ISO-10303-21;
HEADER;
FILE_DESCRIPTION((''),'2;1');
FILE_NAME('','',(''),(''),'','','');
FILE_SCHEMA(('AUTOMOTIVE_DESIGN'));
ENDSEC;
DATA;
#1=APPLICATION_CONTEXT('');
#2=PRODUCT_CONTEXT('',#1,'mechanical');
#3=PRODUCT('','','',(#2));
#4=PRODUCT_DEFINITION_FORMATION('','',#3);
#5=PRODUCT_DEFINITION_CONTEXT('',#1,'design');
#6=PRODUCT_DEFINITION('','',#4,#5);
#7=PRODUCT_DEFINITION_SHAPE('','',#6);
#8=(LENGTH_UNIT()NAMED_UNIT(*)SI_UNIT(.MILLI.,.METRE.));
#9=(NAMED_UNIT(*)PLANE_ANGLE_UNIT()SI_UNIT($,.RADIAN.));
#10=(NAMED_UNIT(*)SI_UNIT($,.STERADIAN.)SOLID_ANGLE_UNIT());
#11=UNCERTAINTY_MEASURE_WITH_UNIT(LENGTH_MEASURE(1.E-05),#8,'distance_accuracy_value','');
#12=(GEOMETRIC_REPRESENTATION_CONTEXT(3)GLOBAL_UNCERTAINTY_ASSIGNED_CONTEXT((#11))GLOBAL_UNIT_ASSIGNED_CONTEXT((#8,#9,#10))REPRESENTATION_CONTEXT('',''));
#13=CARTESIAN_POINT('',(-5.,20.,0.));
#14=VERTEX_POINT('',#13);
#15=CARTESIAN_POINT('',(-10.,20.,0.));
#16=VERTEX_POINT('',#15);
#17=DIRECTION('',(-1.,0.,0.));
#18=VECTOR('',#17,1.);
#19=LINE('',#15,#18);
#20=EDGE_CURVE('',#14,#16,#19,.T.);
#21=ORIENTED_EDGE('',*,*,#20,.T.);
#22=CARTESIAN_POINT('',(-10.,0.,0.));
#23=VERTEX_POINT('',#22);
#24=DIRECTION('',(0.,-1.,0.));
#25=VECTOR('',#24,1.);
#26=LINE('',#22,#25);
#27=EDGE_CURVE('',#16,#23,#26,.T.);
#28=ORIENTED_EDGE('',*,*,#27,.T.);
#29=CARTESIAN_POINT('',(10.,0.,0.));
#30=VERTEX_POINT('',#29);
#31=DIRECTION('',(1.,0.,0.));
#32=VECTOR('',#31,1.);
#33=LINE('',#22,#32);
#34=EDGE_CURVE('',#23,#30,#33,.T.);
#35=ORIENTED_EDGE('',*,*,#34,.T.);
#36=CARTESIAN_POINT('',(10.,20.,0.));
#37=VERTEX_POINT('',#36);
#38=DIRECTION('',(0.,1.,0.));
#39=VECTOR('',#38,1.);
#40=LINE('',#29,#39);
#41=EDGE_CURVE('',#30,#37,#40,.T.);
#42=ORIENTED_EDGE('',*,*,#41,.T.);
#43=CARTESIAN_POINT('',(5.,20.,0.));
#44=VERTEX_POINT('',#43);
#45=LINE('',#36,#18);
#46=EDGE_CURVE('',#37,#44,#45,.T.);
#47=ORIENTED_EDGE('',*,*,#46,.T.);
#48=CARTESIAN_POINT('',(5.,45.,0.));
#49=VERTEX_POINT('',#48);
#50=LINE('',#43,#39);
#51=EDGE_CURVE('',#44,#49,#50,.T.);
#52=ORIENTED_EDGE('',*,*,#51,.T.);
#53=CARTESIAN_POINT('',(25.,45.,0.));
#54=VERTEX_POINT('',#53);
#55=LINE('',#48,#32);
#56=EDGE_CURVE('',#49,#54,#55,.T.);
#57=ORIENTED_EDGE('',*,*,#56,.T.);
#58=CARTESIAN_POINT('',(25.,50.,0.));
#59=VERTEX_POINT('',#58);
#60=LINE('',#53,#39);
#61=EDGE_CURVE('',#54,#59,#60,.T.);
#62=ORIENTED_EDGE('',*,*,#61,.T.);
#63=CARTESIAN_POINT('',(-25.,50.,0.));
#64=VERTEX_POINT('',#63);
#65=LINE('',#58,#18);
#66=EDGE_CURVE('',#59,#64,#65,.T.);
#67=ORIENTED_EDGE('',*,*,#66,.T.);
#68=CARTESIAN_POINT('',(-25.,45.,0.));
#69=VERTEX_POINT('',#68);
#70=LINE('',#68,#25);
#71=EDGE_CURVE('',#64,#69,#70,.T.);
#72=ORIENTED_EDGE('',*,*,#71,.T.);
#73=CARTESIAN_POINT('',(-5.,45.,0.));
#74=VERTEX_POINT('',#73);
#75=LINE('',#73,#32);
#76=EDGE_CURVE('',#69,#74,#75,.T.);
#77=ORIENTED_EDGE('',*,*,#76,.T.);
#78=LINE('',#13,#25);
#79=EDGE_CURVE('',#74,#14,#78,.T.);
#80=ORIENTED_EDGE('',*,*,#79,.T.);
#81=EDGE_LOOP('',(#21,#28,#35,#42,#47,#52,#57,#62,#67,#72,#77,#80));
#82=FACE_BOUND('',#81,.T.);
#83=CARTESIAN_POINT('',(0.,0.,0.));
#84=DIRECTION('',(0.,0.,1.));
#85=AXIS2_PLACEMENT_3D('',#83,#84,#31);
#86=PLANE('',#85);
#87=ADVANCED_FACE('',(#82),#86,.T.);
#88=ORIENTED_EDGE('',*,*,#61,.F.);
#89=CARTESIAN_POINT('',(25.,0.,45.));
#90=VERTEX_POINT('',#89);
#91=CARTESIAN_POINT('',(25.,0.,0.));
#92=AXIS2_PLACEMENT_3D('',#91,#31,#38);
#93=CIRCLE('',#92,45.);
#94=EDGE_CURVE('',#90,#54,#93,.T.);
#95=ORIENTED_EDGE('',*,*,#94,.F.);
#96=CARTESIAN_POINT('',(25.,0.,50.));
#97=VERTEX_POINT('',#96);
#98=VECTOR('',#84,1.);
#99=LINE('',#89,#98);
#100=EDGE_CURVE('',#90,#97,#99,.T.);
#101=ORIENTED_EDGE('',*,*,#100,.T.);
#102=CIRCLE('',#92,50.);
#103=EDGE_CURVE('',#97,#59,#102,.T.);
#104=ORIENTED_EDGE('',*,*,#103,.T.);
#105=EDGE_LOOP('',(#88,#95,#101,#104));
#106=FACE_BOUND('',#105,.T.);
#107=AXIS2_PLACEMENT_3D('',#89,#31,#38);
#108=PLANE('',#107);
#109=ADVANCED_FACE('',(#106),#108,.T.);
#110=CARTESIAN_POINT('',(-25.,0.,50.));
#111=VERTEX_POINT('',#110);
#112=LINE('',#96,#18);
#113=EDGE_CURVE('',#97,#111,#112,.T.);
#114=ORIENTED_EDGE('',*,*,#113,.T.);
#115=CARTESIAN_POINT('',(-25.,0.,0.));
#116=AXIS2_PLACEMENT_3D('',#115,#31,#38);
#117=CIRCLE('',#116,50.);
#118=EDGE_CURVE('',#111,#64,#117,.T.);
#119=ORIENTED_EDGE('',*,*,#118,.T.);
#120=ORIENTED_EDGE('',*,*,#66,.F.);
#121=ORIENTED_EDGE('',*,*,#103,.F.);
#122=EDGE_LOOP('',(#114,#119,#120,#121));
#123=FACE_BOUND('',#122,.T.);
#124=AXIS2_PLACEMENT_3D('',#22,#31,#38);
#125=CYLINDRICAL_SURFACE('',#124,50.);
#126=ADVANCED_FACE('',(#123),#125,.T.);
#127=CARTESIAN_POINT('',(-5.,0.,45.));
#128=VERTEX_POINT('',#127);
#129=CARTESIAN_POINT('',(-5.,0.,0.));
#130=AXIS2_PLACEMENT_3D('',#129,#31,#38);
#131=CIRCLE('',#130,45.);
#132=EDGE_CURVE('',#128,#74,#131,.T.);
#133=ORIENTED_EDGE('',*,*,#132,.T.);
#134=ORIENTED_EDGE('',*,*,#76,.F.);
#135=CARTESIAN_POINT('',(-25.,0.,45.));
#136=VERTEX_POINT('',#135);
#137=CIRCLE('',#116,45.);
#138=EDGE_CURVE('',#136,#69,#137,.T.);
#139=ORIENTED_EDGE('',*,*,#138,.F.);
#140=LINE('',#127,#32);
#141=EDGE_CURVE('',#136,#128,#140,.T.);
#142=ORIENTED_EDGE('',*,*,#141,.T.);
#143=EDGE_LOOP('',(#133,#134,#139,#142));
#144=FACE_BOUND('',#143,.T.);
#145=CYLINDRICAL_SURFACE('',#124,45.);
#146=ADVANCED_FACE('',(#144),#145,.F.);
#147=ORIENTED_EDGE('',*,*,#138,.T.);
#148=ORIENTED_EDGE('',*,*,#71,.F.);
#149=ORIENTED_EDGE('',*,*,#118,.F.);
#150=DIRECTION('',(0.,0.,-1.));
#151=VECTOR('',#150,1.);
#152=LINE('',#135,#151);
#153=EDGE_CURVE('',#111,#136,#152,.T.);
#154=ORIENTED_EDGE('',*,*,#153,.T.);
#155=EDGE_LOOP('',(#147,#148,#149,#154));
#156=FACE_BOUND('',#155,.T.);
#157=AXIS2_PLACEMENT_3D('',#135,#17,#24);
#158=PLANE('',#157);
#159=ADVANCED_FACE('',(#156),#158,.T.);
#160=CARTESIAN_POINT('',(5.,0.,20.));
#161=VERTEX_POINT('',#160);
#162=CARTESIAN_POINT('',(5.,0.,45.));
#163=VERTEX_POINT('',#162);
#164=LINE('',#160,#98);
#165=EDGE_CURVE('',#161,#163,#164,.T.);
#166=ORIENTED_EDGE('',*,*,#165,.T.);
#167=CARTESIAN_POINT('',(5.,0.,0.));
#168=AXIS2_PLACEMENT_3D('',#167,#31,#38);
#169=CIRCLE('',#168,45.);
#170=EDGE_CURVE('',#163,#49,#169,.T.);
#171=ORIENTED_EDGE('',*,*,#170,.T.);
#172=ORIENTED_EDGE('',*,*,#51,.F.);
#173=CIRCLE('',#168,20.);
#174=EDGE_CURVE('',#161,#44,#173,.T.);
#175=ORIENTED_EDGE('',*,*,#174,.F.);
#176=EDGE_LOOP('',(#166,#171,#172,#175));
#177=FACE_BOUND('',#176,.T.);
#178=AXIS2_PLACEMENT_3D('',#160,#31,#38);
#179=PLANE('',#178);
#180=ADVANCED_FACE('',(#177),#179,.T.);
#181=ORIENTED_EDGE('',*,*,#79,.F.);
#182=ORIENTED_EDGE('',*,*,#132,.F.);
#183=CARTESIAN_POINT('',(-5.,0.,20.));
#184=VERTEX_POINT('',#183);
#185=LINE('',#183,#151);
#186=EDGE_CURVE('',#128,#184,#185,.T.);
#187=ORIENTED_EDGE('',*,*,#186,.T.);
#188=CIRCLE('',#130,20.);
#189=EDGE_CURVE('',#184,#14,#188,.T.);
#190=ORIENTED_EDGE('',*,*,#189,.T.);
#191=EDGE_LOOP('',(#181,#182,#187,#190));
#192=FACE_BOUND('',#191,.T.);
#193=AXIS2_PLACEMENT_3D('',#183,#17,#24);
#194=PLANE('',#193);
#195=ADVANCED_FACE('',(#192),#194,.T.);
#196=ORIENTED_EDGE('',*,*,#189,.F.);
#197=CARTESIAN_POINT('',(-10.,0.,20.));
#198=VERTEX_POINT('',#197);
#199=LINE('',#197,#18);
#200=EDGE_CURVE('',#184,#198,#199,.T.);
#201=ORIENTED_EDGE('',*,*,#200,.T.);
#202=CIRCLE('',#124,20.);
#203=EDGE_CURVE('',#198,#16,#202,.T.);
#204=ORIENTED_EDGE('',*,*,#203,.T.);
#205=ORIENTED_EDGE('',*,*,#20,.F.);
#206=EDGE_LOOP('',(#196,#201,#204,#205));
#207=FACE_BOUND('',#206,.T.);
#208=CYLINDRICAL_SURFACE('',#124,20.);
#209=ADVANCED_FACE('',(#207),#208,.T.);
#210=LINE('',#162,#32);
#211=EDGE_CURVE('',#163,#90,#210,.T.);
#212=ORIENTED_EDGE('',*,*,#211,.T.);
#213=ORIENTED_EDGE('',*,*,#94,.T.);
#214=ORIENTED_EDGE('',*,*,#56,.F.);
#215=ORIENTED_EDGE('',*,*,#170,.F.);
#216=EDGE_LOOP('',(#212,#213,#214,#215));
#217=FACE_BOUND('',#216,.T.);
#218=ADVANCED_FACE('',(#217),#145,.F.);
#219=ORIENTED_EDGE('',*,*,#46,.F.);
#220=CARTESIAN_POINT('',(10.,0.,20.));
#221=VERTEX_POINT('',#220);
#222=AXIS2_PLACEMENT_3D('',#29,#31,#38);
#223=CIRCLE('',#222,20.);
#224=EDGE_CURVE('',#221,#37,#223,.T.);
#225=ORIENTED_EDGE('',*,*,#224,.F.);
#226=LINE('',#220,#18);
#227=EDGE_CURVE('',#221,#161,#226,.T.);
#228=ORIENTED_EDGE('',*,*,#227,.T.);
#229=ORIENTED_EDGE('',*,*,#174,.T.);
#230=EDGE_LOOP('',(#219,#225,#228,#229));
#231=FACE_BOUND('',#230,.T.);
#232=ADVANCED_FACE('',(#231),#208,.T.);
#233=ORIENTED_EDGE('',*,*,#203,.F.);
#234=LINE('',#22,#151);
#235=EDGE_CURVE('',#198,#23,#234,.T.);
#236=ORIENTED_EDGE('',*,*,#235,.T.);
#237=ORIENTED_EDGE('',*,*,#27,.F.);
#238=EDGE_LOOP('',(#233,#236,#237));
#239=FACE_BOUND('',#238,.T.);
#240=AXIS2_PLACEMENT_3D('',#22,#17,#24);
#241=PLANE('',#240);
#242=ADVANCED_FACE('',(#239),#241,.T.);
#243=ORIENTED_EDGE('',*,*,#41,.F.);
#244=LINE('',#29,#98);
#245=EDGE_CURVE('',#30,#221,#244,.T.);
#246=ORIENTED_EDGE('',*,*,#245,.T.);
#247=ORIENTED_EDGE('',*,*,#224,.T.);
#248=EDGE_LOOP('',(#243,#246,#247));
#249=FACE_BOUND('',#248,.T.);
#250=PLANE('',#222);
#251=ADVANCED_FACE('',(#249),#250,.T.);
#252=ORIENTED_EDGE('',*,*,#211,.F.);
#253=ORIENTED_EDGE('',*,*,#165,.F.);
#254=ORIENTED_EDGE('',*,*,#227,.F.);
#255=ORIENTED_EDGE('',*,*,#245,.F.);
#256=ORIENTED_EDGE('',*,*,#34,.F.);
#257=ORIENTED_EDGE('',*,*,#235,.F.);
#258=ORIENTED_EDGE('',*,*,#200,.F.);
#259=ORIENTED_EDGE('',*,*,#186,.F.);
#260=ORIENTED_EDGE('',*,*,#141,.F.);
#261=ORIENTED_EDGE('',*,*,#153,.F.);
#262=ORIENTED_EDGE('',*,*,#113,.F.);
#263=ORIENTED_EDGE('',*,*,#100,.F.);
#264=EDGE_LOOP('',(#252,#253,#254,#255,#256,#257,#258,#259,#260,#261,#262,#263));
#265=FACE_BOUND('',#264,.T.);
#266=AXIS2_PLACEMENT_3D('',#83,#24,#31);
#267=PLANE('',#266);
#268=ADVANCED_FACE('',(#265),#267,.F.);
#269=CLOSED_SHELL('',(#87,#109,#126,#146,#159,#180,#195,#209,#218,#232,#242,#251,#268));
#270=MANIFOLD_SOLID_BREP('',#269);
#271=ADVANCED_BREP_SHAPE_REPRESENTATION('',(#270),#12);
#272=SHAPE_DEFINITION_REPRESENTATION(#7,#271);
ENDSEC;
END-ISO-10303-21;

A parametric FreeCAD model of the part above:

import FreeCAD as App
import Part
import Sketcher
Q = App.Units.Quantity


def add_polygon(sketch, points):
    """Adds a closed chain of lines whose ends are joined by coincident constraints."""
    first, n = sketch.GeometryCount, len(points)
    for a, b in zip(points, points[1:] + points[:1]):
        sketch.addGeometry(Part.LineSegment(App.Vector(*a, 0), App.Vector(*b, 0)), False)
    for i in range(n):
        sketch.addConstraint(Sketcher.Constraint("Coincident", first + i, 2, first + (i + 1) % n, 1))

doc = App.newDocument("Part")
params = doc.addObject("Spreadsheet::Sheet", "Params")
for row, (alias, value) in enumerate([
    ("sketch1_width", "20 mm"),
    ("sketch1_width2", "5 mm"),
    ("sketch1_height", "25 mm"),
    ("revolution_angle", "270 deg"),
], start=1):
    params.set(f"A{row}", alias)
    params.set(f"B{row}", "=" + value)
    params.setAlias(f"B{row}", alias)

body = doc.addObject("PartDesign::Body", "Body")

# Sketch on XY plane
sketch1 = body.newObject("Sketcher::SketchObject", "Sketch")
sketch1.AttachmentSupport = (doc.getObject("XY_Plane"), [""])
sketch1.MapMode = "FlatFace"
add_polygon(sketch1, [(-10, 0), (10, 0), (10, 20), (5, 20), (5, 45), (25, 45), (25, 50), (-25, 50), (-25, 45), (-5, 45), (-5, 20), (-10, 20)])  # lines 0-11
sketch1.addConstraint(Sketcher.Constraint("Horizontal", 0))
sketch1.addConstraint(Sketcher.Constraint("Vertical", 1))
sketch1.addConstraint(Sketcher.Constraint("Horizontal", 2))
sketch1.addConstraint(Sketcher.Constraint("Vertical", 3))
sketch1.addConstraint(Sketcher.Constraint("Horizontal", 4))
sketch1.addConstraint(Sketcher.Constraint("Vertical", 5))
sketch1.addConstraint(Sketcher.Constraint("Horizontal", 6))
sketch1.addConstraint(Sketcher.Constraint("Vertical", 7))
sketch1.addConstraint(Sketcher.Constraint("Horizontal", 8))
sketch1.addConstraint(Sketcher.Constraint("Vertical", 9))
sketch1.addConstraint(Sketcher.Constraint("Horizontal", 10))
sketch1.addConstraint(Sketcher.Constraint("Vertical", 11))
sketch1.addConstraint(Sketcher.Constraint("Symmetric", 0, 2, 11, 2, -1, 1))
sketch1.addConstraint(Sketcher.Constraint("Symmetric", 4, 2, 7, 2, -2))
sketch1.addConstraint(Sketcher.Constraint("Symmetric", 2, 2, 9, 2, -2))
sketch1.addConstraint(Sketcher.Constraint("Equal", 0, 4))
sketch1.addConstraint(Sketcher.Constraint("Equal", 8, 1))
sketch1.addConstraint(Sketcher.Constraint("Equal", 10, 5))
sketch1.addConstraint(Sketcher.Constraint("DistanceX", 0, 1, 0, 2, Q("20 mm")))
sketch1.addConstraint(Sketcher.Constraint("DistanceX", 2, 2, 2, 1, Q("5 mm")))
sketch1.addConstraint(Sketcher.Constraint("DistanceY", 3, 1, 3, 2, Q("25 mm")))
sketch1.setExpression("Constraints[30]", "Params.sketch1_width")
sketch1.setExpression("Constraints[31]", "Params.sketch1_width2")
sketch1.setExpression("Constraints[32]", "Params.sketch1_height")
revolution = body.newObject("PartDesign::Revolution", "Revolution")
revolution.Profile = sketch1
revolution.ReferenceAxis = (sketch1, ["H_Axis"])
revolution.setExpression("Angle", "Params.revolution_angle")
revolution.Reversed = True

doc.recompute()
